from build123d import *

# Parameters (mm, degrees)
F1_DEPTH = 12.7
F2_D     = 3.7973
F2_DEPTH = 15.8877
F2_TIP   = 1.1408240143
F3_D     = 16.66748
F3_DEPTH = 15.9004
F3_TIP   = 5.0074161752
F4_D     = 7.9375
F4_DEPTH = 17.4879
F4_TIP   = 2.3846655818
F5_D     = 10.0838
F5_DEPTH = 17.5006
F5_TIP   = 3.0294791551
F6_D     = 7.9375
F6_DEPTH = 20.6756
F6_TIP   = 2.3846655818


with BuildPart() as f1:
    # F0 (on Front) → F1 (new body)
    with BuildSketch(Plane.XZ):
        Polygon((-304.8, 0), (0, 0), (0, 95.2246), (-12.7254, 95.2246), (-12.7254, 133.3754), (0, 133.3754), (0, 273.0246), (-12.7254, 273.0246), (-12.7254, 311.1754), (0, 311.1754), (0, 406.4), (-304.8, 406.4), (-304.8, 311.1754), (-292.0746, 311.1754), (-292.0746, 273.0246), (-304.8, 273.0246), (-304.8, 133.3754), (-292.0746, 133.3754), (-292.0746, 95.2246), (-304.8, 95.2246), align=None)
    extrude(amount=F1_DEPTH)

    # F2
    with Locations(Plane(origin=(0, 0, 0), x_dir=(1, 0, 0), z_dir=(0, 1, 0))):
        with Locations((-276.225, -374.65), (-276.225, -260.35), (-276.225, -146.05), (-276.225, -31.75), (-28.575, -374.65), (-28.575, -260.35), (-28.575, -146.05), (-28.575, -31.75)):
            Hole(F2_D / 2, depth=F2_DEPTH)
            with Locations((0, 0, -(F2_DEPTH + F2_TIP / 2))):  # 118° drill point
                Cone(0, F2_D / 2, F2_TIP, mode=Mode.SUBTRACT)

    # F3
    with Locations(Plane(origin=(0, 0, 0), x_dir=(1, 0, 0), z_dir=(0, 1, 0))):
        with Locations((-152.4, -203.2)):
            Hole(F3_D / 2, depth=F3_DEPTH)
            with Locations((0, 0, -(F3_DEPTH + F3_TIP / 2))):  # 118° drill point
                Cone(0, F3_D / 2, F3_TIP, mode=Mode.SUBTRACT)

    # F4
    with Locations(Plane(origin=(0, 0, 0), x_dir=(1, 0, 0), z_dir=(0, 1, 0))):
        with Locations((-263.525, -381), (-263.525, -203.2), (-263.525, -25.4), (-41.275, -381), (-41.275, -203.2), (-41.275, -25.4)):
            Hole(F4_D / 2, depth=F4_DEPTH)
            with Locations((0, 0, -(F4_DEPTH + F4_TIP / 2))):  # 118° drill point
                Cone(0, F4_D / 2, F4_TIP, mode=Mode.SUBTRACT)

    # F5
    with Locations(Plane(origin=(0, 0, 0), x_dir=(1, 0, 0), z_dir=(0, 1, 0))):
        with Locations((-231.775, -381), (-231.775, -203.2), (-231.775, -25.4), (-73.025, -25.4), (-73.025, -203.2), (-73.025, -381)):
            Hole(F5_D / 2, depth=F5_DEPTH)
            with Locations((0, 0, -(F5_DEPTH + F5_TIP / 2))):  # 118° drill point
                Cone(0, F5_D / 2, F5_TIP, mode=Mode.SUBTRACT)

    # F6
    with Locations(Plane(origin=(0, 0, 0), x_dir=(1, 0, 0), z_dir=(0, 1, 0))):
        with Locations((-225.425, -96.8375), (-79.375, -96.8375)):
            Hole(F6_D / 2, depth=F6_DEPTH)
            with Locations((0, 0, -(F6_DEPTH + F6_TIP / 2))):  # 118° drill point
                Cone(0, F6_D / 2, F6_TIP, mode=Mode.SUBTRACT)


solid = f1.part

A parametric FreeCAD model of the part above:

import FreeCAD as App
import Part
import Sketcher
Q = App.Units.Quantity

doc = App.newDocument("Part")
body = doc.addObject("PartDesign::Body", "Body")

sketch1 = body.newObject("Sketcher::SketchObject", "Sketch")
sketch1.AttachmentSupport = (doc.getObject("XZ_Plane"), [""])
sketch1.MapMode = "FlatFace"
sketch1.addGeometry([
    Part.LineSegment(App.Vector(-304.8, 0, 0), App.Vector(0, 0, 0)),
    Part.LineSegment(App.Vector(0, 0, 0), App.Vector(0, 95.2246, 0)),
    Part.LineSegment(App.Vector(0, 95.2246, 0), App.Vector(-12.7254, 95.2246, 0)),
    Part.LineSegment(App.Vector(-12.7254, 95.2246, 0), App.Vector(-12.7254, 133.3754, 0)),
    Part.LineSegment(App.Vector(-12.7254, 133.3754, 0), App.Vector(0, 133.3754, 0)),
    Part.LineSegment(App.Vector(0, 133.3754, 0), App.Vector(0, 273.0246, 0)),
    Part.LineSegment(App.Vector(0, 273.0246, 0), App.Vector(-12.7254, 273.0246, 0)),
    Part.LineSegment(App.Vector(-12.7254, 273.0246, 0), App.Vector(-12.7254, 311.1754, 0)),
    Part.LineSegment(App.Vector(-12.7254, 311.1754, 0), App.Vector(0, 311.1754, 0)),
    Part.LineSegment(App.Vector(0, 311.1754, 0), App.Vector(0, 406.4, 0)),
    Part.LineSegment(App.Vector(0, 406.4, 0), App.Vector(-304.8, 406.4, 0)),
    Part.LineSegment(App.Vector(-304.8, 406.4, 0), App.Vector(-304.8, 311.1754, 0)),
    Part.LineSegment(App.Vector(-304.8, 311.1754, 0), App.Vector(-292.0746, 311.1754, 0)),
    Part.LineSegment(App.Vector(-292.0746, 311.1754, 0), App.Vector(-292.0746, 273.0246, 0)),
    Part.LineSegment(App.Vector(-292.0746, 273.0246, 0), App.Vector(-304.8, 273.0246, 0)),
    Part.LineSegment(App.Vector(-304.8, 273.0246, 0), App.Vector(-304.8, 133.3754, 0)),
    Part.LineSegment(App.Vector(-304.8, 133.3754, 0), App.Vector(-292.0746, 133.3754, 0)),
    Part.LineSegment(App.Vector(-292.0746, 133.3754, 0), App.Vector(-292.0746, 95.2246, 0)),
    Part.LineSegment(App.Vector(-292.0746, 95.2246, 0), App.Vector(-304.8, 95.2246, 0)),
    Part.LineSegment(App.Vector(-304.8, 95.2246, 0), App.Vector(-304.8, 0, 0)),
], False)
sketch1.addConstraint([
    Sketcher.Constraint("Coincident", 0, 2, 1, 1),
    Sketcher.Constraint("Coincident", 1, 2, 2, 1),
    Sketcher.Constraint("Coincident", 2, 2, 3, 1),
    Sketcher.Constraint("Coincident", 3, 2, 4, 1),
    Sketcher.Constraint("Coincident", 4, 2, 5, 1),
    Sketcher.Constraint("Coincident", 5, 2, 6, 1),
    Sketcher.Constraint("Coincident", 6, 2, 7, 1),
    Sketcher.Constraint("Coincident", 7, 2, 8, 1),
    Sketcher.Constraint("Coincident", 8, 2, 9, 1),
    Sketcher.Constraint("Coincident", 9, 2, 10, 1),
    Sketcher.Constraint("Coincident", 10, 2, 11, 1),
    Sketcher.Constraint("Coincident", 11, 2, 12, 1),
    Sketcher.Constraint("Coincident", 12, 2, 13, 1),
    Sketcher.Constraint("Coincident", 13, 2, 14, 1),
    Sketcher.Constraint("Coincident", 14, 2, 15, 1),
    Sketcher.Constraint("Coincident", 15, 2, 16, 1),
    Sketcher.Constraint("Coincident", 16, 2, 17, 1),
    Sketcher.Constraint("Coincident", 17, 2, 18, 1),
    Sketcher.Constraint("Coincident", 18, 2, 19, 1),
    Sketcher.Constraint("Coincident", 19, 2, 0, 1),
    Sketcher.Constraint("Horizontal", 0),
    Sketcher.Constraint("Vertical", 1),
    Sketcher.Constraint("Horizontal", 2),
    Sketcher.Constraint("Vertical", 3),
    Sketcher.Constraint("Horizontal", 4),
    Sketcher.Constraint("Vertical", 5),
    Sketcher.Constraint("Horizontal", 6),
    Sketcher.Constraint("Vertical", 7),
    Sketcher.Constraint("Horizontal", 8),
    Sketcher.Constraint("Vertical", 9),
    Sketcher.Constraint("Horizontal", 10),
    Sketcher.Constraint("Vertical", 11),
    Sketcher.Constraint("Horizontal", 12),
    Sketcher.Constraint("Vertical", 13),
    Sketcher.Constraint("Horizontal", 14),
    Sketcher.Constraint("Vertical", 15),
    Sketcher.Constraint("Horizontal", 16),
    Sketcher.Constraint("Vertical", 17),
    Sketcher.Constraint("Horizontal", 18),
    Sketcher.Constraint("Vertical", 19),
    Sketcher.Constraint("Coincident", 0, 2, -1, 1),
    Sketcher.Constraint("PointOnObject", 4, 2, -2),
    Sketcher.Constraint("PointOnObject", 8, 2, -2),
    Sketcher.Constraint("Horizontal", 8, 2, 11, 2),
    Sketcher.Constraint("Horizontal", 6, 2, 13, 2),
    Sketcher.Constraint("Horizontal", 4, 2, 15, 2),
    Sketcher.Constraint("Horizontal", 2, 2, 17, 2),
    Sketcher.Constraint("Vertical", 3, 2, 6, 2),
    Sketcher.Constraint("Vertical", 11, 2, 14, 2),
    Sketcher.Constraint("Vertical", 13, 2, 16, 2),
    Sketcher.Constraint("Vertical", 15, 2, 18, 2),
    Sketcher.Constraint("Equal", 8, 12),
    Sketcher.Constraint("Equal", 3, 7),
    Sketcher.Constraint("Equal", 1, 9),
    Sketcher.Constraint("DistanceX", 0, 1, 0, 2, Q("12 in")),
    Sketcher.Constraint("DistanceY", -1, 1, 9, 2, Q("16 in")),
    Sketcher.Constraint("DistanceY", 1, 2, 5, 2, Q("7 in")),
    Sketcher.Constraint("DistanceX", 2, 2, 2, 1, Q("0.501 in")),
    Sketcher.Constraint("DistanceY", 1, 1, 1, 2, Q("3.749 in")),
])
pad1 = body.newObject("PartDesign::Pad", "Pad")
pad1.Profile = sketch1
pad1.Length = Q("0.5 in")

sketch2 = body.newObject("Sketcher::SketchObject", "Sketch001")
sketch2.AttachmentSupport = (doc.getObject("XZ_Plane"), [""])
sketch2.MapMode = "FlatFace"
sketch2.addGeometry([
    Part.Circle(App.Vector(-276.225, 374.65, 0), App.Vector(0, 0, 1), 1.89865),
    Part.Circle(App.Vector(-276.225, 260.35, 0), App.Vector(0, 0, 1), 1.89865),
    Part.Circle(App.Vector(-276.225, 146.05, 0), App.Vector(0, 0, 1), 1.89865),
    Part.Circle(App.Vector(-276.225, 31.75, 0), App.Vector(0, 0, 1), 1.89865),
    Part.Circle(App.Vector(-28.575, 374.65, 0), App.Vector(0, 0, 1), 1.89865),
    Part.Circle(App.Vector(-28.575, 260.35, 0), App.Vector(0, 0, 1), 1.89865),
    Part.Circle(App.Vector(-28.575, 146.05, 0), App.Vector(0, 0, 1), 1.89865),
    Part.Circle(App.Vector(-28.575, 31.75, 0), App.Vector(0, 0, 1), 1.89865),
], False)
sketch2.addConstraint([
    Sketcher.Constraint("Equal", 0, 1),
    Sketcher.Constraint("Equal", 1, 2),
    Sketcher.Constraint("Equal", 2, 3),
    Sketcher.Constraint("Equal", 3, 4),
    Sketcher.Constraint("Equal", 4, 5),
    Sketcher.Constraint("Equal", 5, 6),
    Sketcher.Constraint("Equal", 6, 7),
    Sketcher.Constraint("Horizontal", 0, 3, 4, 3),
    Sketcher.Constraint("Horizontal", 1, 3, 5, 3),
    Sketcher.Constraint("Horizontal", 2, 3, 6, 3),
    Sketcher.Constraint("Horizontal", 3, 3, 7, 3),
    Sketcher.Constraint("Vertical", 0, 3, 1, 3),
    Sketcher.Constraint("Vertical", 1, 3, 2, 3),
    Sketcher.Constraint("Vertical", 2, 3, 3, 3),
    Sketcher.Constraint("Vertical", 4, 3, 5, 3),
    Sketcher.Constraint("Vertical", 5, 3, 6, 3),
    Sketcher.Constraint("Vertical", 6, 3, 7, 3),
    Sketcher.Constraint("DistanceY", 2, 3, 0, 3, Q("9 in")),
    Sketcher.Constraint("DistanceY", 3, 3, 1, 3, Q("9 in")),
    Sketcher.Constraint("Diameter", 0, Q("0.1495 in")),
    Sketcher.Constraint("DistanceY", 1, 3, 0, 3, Q("4.5 in")),
    Sketcher.Constraint("DistanceY", -1, 1, 0, 3, Q("14.75 in")),
    Sketcher.Constraint("DistanceX", 0, 3, 4, 3, Q("9.75 in")),
    Sketcher.Constraint("DistanceX", 0, 3, -1, 1, Q("10.875 in")),
])
doc.recompute()
hole = body.newObject("PartDesign::Hole", "Hole")
hole.Profile = sketch2
hole.ThreadType = "None"
hole.Diameter = Q("0.1495 in")
hole.DepthType = "Dimension"
hole.Depth = Q("0.6255 in")
hole.DrillPoint = "Angled"
hole.DrillPointAngle = 118
hole.Reversed = True

sketch3 = body.newObject("Sketcher::SketchObject", "Sketch002")
sketch3.AttachmentSupport = (doc.getObject("XZ_Plane"), [""])
sketch3.MapMode = "FlatFace"
sketch3.addGeometry(Part.Circle(App.Vector(-152.4, 203.2, 0), App.Vector(0, 0, 1), 8.33374), False)
sketch3.addConstraint([
    Sketcher.Constraint("DistanceX", 0, 3, -1, 1, Q("6 in")),
    Sketcher.Constraint("DistanceY", -1, 1, 0, 3, Q("8 in")),
    Sketcher.Constraint("Diameter", 0, Q("0.6562 in")),
])
doc.recompute()
hole2 = body.newObject("PartDesign::Hole", "Hole001")
hole2.Profile = sketch3
hole2.ThreadType = "None"
hole2.Diameter = Q("0.6562 in")
hole2.DepthType = "Dimension"
hole2.Depth = Q("0.626 in")
hole2.DrillPoint = "Angled"
hole2.DrillPointAngle = 118
hole2.Reversed = True

sketch4 = body.newObject("Sketcher::SketchObject", "Sketch003")
sketch4.AttachmentSupport = (doc.getObject("XZ_Plane"), [""])
sketch4.MapMode = "FlatFace"
sketch4.addGeometry([
    Part.Circle(App.Vector(-263.525, 381, 0), App.Vector(0, 0, 1), 3.96875),
    Part.Circle(App.Vector(-263.525, 203.2, 0), App.Vector(0, 0, 1), 3.96875),
    Part.Circle(App.Vector(-263.525, 25.4, 0), App.Vector(0, 0, 1), 3.96875),
    Part.Circle(App.Vector(-41.275, 381, 0), App.Vector(0, 0, 1), 3.96875),
    Part.Circle(App.Vector(-41.275, 203.2, 0), App.Vector(0, 0, 1), 3.96875),
    Part.Circle(App.Vector(-41.275, 25.4, 0), App.Vector(0, 0, 1), 3.96875),
], False)
sketch4.addConstraint([
    Sketcher.Constraint("Equal", 0, 1),
    Sketcher.Constraint("Equal", 1, 2),
    Sketcher.Constraint("Equal", 2, 3),
    Sketcher.Constraint("Equal", 3, 4),
    Sketcher.Constraint("Equal", 4, 5),
    Sketcher.Constraint("Horizontal", 0, 3, 3, 3),
    Sketcher.Constraint("Horizontal", 1, 3, 4, 3),
    Sketcher.Constraint("Horizontal", 2, 3, 5, 3),
    Sketcher.Constraint("Vertical", 0, 3, 1, 3),
    Sketcher.Constraint("Vertical", 1, 3, 2, 3),
    Sketcher.Constraint("Vertical", 3, 3, 4, 3),
    Sketcher.Constraint("Vertical", 4, 3, 5, 3),
    Sketcher.Constraint("Diameter", 0, Q("0.3125 in")),
    Sketcher.Constraint("DistanceY", -1, 1, 0, 3, Q("15 in")),
    Sketcher.Constraint("DistanceY", -1, 1, 1, 3, Q("8 in")),
    Sketcher.Constraint("DistanceY", -1, 1, 2, 3, Q("1 in")),
    Sketcher.Constraint("DistanceX", 0, 3, 3, 3, Q("8.75 in")),
    Sketcher.Constraint("DistanceX", 0, 3, -1, 1, Q("10.375 in")),
])
doc.recompute()
hole3 = body.newObject("PartDesign::Hole", "Hole002")
hole3.Profile = sketch4
hole3.ThreadType = "None"
hole3.Diameter = Q("0.3125 in")
hole3.DepthType = "Dimension"
hole3.Depth = Q("0.6885 in")
hole3.DrillPoint = "Angled"
hole3.DrillPointAngle = 118
hole3.Reversed = True

sketch5 = body.newObject("Sketcher::SketchObject", "Sketch004")
sketch5.AttachmentSupport = (doc.getObject("XZ_Plane"), [""])
sketch5.MapMode = "FlatFace"
sketch5.addGeometry([
    Part.Circle(App.Vector(-231.775, 381, 0), App.Vector(0, 0, 1), 5.0419),
    Part.Circle(App.Vector(-231.775, 203.2, 0), App.Vector(0, 0, 1), 5.0419),
    Part.Circle(App.Vector(-231.775, 25.4, 0), App.Vector(0, 0, 1), 5.0419),
    Part.Circle(App.Vector(-73.025, 25.4, 0), App.Vector(0, 0, 1), 5.0419),
    Part.Circle(App.Vector(-73.025, 203.2, 0), App.Vector(0, 0, 1), 5.0419),
    Part.Circle(App.Vector(-73.025, 381, 0), App.Vector(0, 0, 1), 5.0419),
], False)
sketch5.addConstraint([
    Sketcher.Constraint("Equal", 0, 1),
    Sketcher.Constraint("Equal", 1, 2),
    Sketcher.Constraint("Equal", 2, 3),
    Sketcher.Constraint("Equal", 3, 4),
    Sketcher.Constraint("Equal", 4, 5),
    Sketcher.Constraint("Horizontal", 2, 3, 3, 3),
    Sketcher.Constraint("Horizontal", 1, 3, 4, 3),
    Sketcher.Constraint("Horizontal", 0, 3, 5, 3),
    Sketcher.Constraint("Vertical", 0, 3, 1, 3),
    Sketcher.Constraint("Vertical", 1, 3, 2, 3),
    Sketcher.Constraint("Vertical", 3, 3, 4, 3),
    Sketcher.Constraint("Vertical", 4, 3, 5, 3),
    Sketcher.Constraint("Diameter", 0, Q("0.397 in")),
    Sketcher.Constraint("DistanceY", -1, 1, 0, 3, Q("15 in")),
    Sketcher.Constraint("DistanceY", -1, 1, 1, 3, Q("8 in")),
    Sketcher.Constraint("DistanceY", -1, 1, 2, 3, Q("1 in")),
    Sketcher.Constraint("DistanceX", 2, 3, 3, 3, Q("6.25 in")),
    Sketcher.Constraint("DistanceX", 0, 3, -1, 1, Q("9.125 in")),
])
doc.recompute()
hole4 = body.newObject("PartDesign::Hole", "Hole003")
hole4.Profile = sketch5
hole4.ThreadType = "None"
hole4.Diameter = Q("0.397 in")
hole4.DepthType = "Dimension"
hole4.Depth = Q("0.689 in")
hole4.DrillPoint = "Angled"
hole4.DrillPointAngle = 118
hole4.Reversed = True

sketch6 = body.newObject("Sketcher::SketchObject", "Sketch005")
sketch6.AttachmentSupport = (doc.getObject("XZ_Plane"), [""])
sketch6.MapMode = "FlatFace"
sketch6.addGeometry([
    Part.Circle(App.Vector(-225.425, 96.8375, 0), App.Vector(0, 0, 1), 3.96875),
    Part.Circle(App.Vector(-79.375, 96.8375, 0), App.Vector(0, 0, 1), 3.96875),
], False)
sketch6.addConstraint([
    Sketcher.Constraint("Equal", 0, 1),
    Sketcher.Constraint("Horizontal", 0, 3, 1, 3),
    Sketcher.Constraint("Diameter", 0, Q("0.3125 in")),
    Sketcher.Constraint("DistanceX", 0, 3, 1, 3, Q("5.75 in")),
    Sketcher.Constraint("DistanceX", 0, 3, -1, 1, Q("8.875 in")),
    Sketcher.Constraint("DistanceY", -1, 1, 0, 3, Q("3.8125 in")),
])
doc.recompute()
hole5 = body.newObject("PartDesign::Hole", "Hole004")
hole5.Profile = sketch6
hole5.ThreadType = "None"
hole5.Diameter = Q("0.3125 in")
hole5.DepthType = "Dimension"
hole5.Depth = Q("0.814 in")
hole5.DrillPoint = "Angled"
hole5.DrillPointAngle = 118
hole5.Reversed = True

doc.recompute()
